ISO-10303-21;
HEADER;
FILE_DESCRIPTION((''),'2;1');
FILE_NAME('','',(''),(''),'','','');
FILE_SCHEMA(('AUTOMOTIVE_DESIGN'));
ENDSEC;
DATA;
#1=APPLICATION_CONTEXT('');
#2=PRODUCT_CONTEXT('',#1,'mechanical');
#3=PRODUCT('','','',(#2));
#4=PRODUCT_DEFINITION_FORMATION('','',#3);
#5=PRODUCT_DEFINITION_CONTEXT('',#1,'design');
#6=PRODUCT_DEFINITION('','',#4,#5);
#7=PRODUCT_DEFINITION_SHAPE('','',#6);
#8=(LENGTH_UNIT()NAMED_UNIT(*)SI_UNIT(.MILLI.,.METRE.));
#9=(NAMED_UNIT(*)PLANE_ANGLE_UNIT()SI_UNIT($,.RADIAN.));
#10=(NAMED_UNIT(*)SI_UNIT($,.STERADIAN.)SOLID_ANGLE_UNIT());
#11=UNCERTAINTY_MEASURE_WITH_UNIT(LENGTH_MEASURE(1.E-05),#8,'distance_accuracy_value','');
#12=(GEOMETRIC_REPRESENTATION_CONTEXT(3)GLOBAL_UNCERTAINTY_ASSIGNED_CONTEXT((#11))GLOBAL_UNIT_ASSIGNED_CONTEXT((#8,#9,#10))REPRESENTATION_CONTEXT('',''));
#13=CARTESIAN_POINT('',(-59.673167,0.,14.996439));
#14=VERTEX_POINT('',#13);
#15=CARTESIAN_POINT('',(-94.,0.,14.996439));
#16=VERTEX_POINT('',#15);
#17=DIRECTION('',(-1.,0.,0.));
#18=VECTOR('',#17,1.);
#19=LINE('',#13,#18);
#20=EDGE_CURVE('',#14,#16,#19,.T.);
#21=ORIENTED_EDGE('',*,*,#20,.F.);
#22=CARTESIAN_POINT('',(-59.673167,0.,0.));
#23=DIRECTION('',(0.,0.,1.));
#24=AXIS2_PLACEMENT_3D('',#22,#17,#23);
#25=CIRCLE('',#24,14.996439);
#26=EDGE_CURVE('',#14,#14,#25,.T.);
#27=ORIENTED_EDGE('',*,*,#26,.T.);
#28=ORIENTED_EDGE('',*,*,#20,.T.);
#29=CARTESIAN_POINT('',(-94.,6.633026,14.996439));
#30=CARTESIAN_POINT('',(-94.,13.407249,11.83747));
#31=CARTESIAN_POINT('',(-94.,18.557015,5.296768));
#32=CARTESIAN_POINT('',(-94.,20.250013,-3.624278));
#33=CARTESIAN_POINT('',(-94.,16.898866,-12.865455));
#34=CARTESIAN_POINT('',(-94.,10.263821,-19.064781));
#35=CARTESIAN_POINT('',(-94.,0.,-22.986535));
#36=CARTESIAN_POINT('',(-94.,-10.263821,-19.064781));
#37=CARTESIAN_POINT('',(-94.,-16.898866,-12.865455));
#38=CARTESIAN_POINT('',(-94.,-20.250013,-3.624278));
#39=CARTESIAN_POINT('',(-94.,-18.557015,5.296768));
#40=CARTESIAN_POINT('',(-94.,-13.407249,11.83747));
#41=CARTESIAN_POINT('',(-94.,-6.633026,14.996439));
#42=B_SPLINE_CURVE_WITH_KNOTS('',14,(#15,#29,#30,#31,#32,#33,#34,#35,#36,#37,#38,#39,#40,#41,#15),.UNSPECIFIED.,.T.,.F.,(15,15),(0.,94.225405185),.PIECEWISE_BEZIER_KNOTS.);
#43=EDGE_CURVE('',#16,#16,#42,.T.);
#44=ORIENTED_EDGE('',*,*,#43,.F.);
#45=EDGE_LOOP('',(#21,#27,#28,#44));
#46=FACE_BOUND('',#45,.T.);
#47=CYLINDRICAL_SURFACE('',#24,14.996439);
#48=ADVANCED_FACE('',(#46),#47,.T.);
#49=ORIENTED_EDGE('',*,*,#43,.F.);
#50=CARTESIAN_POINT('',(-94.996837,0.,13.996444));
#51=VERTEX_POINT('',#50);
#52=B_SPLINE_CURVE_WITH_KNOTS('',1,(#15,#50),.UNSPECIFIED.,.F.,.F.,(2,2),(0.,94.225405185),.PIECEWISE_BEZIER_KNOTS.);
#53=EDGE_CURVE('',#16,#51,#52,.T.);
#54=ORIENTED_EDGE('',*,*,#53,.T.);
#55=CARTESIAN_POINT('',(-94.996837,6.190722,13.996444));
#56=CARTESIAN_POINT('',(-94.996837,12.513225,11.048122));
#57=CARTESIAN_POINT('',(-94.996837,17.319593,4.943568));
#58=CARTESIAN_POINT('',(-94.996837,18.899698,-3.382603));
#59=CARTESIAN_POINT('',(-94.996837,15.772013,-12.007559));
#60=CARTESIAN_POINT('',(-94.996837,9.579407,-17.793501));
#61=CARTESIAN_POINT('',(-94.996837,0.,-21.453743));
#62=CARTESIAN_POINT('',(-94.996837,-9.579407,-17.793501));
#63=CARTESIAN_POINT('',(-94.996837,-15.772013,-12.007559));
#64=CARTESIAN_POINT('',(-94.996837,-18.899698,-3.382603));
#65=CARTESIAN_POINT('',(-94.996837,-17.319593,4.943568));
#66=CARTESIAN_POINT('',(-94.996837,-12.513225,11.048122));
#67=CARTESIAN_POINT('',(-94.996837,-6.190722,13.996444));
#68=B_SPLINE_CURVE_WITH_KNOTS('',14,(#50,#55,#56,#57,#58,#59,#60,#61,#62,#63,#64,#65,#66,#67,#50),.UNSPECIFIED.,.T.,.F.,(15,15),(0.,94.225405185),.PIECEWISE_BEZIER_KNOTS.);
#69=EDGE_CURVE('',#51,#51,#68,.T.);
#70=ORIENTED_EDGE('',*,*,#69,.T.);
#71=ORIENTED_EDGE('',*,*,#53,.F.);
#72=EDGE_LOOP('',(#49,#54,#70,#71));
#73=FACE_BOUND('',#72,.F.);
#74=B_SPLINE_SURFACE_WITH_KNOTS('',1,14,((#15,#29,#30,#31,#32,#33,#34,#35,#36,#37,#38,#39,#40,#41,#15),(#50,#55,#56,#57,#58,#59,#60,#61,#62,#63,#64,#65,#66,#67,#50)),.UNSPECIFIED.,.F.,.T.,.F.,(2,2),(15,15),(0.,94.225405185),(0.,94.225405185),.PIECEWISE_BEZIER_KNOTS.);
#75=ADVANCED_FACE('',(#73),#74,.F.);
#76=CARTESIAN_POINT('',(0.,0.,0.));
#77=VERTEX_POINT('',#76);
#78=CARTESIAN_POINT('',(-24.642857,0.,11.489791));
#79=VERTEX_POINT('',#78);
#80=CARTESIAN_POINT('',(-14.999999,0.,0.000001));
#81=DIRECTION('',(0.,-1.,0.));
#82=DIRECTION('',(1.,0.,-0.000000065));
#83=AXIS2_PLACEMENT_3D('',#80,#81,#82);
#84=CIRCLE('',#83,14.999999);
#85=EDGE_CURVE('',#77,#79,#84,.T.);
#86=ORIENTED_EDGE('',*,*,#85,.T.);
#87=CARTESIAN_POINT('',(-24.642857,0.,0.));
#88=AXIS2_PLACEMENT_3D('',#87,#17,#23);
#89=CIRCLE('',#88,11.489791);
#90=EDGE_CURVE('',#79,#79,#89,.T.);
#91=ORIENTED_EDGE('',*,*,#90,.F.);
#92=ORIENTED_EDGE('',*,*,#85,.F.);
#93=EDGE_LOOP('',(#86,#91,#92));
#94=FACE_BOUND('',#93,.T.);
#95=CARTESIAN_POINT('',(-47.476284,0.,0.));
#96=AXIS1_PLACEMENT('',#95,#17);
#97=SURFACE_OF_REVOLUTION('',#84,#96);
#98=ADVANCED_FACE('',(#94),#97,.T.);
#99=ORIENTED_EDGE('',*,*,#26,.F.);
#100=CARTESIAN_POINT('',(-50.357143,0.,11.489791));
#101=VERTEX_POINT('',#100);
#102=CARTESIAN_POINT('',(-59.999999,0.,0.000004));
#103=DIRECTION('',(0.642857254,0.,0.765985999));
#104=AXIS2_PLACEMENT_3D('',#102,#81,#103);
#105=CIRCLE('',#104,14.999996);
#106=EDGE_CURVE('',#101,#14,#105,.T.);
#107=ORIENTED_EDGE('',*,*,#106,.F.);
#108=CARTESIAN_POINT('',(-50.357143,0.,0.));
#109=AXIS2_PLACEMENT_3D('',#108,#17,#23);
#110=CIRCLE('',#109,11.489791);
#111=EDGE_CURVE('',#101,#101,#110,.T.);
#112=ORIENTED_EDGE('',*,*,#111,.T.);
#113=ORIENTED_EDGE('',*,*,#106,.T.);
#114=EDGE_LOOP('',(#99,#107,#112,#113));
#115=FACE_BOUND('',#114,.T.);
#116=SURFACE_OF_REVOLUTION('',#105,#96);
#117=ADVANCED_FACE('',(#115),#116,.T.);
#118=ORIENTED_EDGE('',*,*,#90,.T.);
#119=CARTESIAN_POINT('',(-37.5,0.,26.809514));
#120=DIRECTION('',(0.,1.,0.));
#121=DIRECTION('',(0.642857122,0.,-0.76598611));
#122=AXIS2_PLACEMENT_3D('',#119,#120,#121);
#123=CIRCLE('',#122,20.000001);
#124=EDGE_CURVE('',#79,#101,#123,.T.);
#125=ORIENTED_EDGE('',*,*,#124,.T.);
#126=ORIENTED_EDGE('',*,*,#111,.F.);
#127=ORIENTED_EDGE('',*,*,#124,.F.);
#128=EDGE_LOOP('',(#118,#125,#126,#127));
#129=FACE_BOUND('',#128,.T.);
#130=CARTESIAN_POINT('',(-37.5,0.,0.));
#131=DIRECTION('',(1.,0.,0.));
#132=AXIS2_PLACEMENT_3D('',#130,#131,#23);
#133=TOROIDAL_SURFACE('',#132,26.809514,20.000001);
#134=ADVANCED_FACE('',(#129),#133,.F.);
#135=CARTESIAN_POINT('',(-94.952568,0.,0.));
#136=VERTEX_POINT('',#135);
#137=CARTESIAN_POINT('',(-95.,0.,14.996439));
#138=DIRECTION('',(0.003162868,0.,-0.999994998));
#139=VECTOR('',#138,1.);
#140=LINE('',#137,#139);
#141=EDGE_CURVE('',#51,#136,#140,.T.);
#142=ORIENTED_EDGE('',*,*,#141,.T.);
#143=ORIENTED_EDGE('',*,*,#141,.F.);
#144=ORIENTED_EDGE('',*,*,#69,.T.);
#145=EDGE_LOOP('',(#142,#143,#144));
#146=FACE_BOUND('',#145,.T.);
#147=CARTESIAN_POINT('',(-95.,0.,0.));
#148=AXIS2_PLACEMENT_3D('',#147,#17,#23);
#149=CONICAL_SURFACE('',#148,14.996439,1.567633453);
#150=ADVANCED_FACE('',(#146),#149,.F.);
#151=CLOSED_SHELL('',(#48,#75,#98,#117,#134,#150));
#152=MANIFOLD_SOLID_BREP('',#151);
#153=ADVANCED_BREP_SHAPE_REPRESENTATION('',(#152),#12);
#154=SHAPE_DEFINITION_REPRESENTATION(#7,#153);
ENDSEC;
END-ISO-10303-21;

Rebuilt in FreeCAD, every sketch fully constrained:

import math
import FreeCAD as App
import Part
import Sketcher

V = App.Vector


def edges_at(feature, points):
    """Names of the edges that pass closest to the given points."""
    edges = feature.Shape.Edges
    near = lambda p: min(range(len(edges)), key=lambda i: edges[i].distToShape(Part.Vertex(*p))[0])
    return sorted({f"Edge{near(p) + 1}" for p in points})

doc = App.newDocument("Part")
body = doc.addObject("PartDesign::Body", "Body")

# Sketch on XZ plane
sketch1 = body.newObject("Sketcher::SketchObject", "Sketch")
sketch1.AttachmentSupport = (doc.getObject("XZ_Plane"), [""])
sketch1.MapMode = "FlatFace"
sketch1.addGeometry([
    Part.LineSegment(V(-94.952568, 0, 0), V(0, 0, 0)),  # 0
    Part.ArcOfCircle(Part.Circle(V(-14.999999, 0.000001, 0), V(0, 0, 1), 14.999999), math.radians(-0.000004), math.radians(130.005206)),  # 1
    Part.ArcOfCircle(Part.Circle(V(-37.5, 26.809514, 0), V(0, 0, 1), 20.000001), math.radians(-130.005199), math.radians(-49.994801)),  # 2
    Part.ArcOfCircle(Part.Circle(V(-59.999999, 0.000004, 0), V(0, 0, 1), 14.999996), math.radians(49.994791), math.radians(88.751494)),  # 3
    Part.LineSegment(V(-59.673167, 14.996439, 0), V(-95, 14.996439, 0)),  # 4
    Part.LineSegment(V(-95, 14.996439, 0), V(-94.952568, 0, 0)),  # 5
], False)
sketch1.addConstraint([
    Sketcher.Constraint("Coincident", 0, 2, 1, 1),
    Sketcher.Constraint("Tangent", 1, 2, 2, 2),
    Sketcher.Constraint("Tangent", 2, 1, 3, 1),
    Sketcher.Constraint("Coincident", 3, 2, 4, 1),
    Sketcher.Constraint("Coincident", 4, 2, 5, 1),
    Sketcher.Constraint("Coincident", 5, 2, 0, 1),
    Sketcher.Constraint("Horizontal", 0),
    Sketcher.Constraint("Horizontal", 4),
    Sketcher.Constraint("Coincident", 0, 2, -1, 1),
    Sketcher.Constraint("PointOnObject", 1, 3, -1),
    Sketcher.Constraint("Horizontal", 1, 2, 2, 1),
    Sketcher.Constraint("Radius", 1, 14.999999),
    Sketcher.Constraint("Radius", 2, 20.000001),
    Sketcher.Constraint("DistanceX", 3, 3, -1, 1, 59.999999),
    Sketcher.Constraint("DistanceX", 4, 2, -1, 1, 95.0),
    Sketcher.Constraint("DistanceX", 2, 3, -1, 1, 37.5),
    Sketcher.Constraint("DistanceX", 0, 1, 0, 2, 94.952568),
    Sketcher.Constraint("DistanceX", 5, 2, 3, 2, 35.279401),
])
revolution = body.newObject("PartDesign::Revolution", "Revolution")
revolution.Profile = sketch1
revolution.ReferenceAxis = (sketch1, ["H_Axis"])
revolution.Angle = 360
doc.recompute()

chamfer = body.newObject("PartDesign::Chamfer", "Chamfer")
chamfer.Base = (revolution, edges_at(revolution, [(-95, 0, -14.996)]))
chamfer.Size = 1

doc.recompute()
